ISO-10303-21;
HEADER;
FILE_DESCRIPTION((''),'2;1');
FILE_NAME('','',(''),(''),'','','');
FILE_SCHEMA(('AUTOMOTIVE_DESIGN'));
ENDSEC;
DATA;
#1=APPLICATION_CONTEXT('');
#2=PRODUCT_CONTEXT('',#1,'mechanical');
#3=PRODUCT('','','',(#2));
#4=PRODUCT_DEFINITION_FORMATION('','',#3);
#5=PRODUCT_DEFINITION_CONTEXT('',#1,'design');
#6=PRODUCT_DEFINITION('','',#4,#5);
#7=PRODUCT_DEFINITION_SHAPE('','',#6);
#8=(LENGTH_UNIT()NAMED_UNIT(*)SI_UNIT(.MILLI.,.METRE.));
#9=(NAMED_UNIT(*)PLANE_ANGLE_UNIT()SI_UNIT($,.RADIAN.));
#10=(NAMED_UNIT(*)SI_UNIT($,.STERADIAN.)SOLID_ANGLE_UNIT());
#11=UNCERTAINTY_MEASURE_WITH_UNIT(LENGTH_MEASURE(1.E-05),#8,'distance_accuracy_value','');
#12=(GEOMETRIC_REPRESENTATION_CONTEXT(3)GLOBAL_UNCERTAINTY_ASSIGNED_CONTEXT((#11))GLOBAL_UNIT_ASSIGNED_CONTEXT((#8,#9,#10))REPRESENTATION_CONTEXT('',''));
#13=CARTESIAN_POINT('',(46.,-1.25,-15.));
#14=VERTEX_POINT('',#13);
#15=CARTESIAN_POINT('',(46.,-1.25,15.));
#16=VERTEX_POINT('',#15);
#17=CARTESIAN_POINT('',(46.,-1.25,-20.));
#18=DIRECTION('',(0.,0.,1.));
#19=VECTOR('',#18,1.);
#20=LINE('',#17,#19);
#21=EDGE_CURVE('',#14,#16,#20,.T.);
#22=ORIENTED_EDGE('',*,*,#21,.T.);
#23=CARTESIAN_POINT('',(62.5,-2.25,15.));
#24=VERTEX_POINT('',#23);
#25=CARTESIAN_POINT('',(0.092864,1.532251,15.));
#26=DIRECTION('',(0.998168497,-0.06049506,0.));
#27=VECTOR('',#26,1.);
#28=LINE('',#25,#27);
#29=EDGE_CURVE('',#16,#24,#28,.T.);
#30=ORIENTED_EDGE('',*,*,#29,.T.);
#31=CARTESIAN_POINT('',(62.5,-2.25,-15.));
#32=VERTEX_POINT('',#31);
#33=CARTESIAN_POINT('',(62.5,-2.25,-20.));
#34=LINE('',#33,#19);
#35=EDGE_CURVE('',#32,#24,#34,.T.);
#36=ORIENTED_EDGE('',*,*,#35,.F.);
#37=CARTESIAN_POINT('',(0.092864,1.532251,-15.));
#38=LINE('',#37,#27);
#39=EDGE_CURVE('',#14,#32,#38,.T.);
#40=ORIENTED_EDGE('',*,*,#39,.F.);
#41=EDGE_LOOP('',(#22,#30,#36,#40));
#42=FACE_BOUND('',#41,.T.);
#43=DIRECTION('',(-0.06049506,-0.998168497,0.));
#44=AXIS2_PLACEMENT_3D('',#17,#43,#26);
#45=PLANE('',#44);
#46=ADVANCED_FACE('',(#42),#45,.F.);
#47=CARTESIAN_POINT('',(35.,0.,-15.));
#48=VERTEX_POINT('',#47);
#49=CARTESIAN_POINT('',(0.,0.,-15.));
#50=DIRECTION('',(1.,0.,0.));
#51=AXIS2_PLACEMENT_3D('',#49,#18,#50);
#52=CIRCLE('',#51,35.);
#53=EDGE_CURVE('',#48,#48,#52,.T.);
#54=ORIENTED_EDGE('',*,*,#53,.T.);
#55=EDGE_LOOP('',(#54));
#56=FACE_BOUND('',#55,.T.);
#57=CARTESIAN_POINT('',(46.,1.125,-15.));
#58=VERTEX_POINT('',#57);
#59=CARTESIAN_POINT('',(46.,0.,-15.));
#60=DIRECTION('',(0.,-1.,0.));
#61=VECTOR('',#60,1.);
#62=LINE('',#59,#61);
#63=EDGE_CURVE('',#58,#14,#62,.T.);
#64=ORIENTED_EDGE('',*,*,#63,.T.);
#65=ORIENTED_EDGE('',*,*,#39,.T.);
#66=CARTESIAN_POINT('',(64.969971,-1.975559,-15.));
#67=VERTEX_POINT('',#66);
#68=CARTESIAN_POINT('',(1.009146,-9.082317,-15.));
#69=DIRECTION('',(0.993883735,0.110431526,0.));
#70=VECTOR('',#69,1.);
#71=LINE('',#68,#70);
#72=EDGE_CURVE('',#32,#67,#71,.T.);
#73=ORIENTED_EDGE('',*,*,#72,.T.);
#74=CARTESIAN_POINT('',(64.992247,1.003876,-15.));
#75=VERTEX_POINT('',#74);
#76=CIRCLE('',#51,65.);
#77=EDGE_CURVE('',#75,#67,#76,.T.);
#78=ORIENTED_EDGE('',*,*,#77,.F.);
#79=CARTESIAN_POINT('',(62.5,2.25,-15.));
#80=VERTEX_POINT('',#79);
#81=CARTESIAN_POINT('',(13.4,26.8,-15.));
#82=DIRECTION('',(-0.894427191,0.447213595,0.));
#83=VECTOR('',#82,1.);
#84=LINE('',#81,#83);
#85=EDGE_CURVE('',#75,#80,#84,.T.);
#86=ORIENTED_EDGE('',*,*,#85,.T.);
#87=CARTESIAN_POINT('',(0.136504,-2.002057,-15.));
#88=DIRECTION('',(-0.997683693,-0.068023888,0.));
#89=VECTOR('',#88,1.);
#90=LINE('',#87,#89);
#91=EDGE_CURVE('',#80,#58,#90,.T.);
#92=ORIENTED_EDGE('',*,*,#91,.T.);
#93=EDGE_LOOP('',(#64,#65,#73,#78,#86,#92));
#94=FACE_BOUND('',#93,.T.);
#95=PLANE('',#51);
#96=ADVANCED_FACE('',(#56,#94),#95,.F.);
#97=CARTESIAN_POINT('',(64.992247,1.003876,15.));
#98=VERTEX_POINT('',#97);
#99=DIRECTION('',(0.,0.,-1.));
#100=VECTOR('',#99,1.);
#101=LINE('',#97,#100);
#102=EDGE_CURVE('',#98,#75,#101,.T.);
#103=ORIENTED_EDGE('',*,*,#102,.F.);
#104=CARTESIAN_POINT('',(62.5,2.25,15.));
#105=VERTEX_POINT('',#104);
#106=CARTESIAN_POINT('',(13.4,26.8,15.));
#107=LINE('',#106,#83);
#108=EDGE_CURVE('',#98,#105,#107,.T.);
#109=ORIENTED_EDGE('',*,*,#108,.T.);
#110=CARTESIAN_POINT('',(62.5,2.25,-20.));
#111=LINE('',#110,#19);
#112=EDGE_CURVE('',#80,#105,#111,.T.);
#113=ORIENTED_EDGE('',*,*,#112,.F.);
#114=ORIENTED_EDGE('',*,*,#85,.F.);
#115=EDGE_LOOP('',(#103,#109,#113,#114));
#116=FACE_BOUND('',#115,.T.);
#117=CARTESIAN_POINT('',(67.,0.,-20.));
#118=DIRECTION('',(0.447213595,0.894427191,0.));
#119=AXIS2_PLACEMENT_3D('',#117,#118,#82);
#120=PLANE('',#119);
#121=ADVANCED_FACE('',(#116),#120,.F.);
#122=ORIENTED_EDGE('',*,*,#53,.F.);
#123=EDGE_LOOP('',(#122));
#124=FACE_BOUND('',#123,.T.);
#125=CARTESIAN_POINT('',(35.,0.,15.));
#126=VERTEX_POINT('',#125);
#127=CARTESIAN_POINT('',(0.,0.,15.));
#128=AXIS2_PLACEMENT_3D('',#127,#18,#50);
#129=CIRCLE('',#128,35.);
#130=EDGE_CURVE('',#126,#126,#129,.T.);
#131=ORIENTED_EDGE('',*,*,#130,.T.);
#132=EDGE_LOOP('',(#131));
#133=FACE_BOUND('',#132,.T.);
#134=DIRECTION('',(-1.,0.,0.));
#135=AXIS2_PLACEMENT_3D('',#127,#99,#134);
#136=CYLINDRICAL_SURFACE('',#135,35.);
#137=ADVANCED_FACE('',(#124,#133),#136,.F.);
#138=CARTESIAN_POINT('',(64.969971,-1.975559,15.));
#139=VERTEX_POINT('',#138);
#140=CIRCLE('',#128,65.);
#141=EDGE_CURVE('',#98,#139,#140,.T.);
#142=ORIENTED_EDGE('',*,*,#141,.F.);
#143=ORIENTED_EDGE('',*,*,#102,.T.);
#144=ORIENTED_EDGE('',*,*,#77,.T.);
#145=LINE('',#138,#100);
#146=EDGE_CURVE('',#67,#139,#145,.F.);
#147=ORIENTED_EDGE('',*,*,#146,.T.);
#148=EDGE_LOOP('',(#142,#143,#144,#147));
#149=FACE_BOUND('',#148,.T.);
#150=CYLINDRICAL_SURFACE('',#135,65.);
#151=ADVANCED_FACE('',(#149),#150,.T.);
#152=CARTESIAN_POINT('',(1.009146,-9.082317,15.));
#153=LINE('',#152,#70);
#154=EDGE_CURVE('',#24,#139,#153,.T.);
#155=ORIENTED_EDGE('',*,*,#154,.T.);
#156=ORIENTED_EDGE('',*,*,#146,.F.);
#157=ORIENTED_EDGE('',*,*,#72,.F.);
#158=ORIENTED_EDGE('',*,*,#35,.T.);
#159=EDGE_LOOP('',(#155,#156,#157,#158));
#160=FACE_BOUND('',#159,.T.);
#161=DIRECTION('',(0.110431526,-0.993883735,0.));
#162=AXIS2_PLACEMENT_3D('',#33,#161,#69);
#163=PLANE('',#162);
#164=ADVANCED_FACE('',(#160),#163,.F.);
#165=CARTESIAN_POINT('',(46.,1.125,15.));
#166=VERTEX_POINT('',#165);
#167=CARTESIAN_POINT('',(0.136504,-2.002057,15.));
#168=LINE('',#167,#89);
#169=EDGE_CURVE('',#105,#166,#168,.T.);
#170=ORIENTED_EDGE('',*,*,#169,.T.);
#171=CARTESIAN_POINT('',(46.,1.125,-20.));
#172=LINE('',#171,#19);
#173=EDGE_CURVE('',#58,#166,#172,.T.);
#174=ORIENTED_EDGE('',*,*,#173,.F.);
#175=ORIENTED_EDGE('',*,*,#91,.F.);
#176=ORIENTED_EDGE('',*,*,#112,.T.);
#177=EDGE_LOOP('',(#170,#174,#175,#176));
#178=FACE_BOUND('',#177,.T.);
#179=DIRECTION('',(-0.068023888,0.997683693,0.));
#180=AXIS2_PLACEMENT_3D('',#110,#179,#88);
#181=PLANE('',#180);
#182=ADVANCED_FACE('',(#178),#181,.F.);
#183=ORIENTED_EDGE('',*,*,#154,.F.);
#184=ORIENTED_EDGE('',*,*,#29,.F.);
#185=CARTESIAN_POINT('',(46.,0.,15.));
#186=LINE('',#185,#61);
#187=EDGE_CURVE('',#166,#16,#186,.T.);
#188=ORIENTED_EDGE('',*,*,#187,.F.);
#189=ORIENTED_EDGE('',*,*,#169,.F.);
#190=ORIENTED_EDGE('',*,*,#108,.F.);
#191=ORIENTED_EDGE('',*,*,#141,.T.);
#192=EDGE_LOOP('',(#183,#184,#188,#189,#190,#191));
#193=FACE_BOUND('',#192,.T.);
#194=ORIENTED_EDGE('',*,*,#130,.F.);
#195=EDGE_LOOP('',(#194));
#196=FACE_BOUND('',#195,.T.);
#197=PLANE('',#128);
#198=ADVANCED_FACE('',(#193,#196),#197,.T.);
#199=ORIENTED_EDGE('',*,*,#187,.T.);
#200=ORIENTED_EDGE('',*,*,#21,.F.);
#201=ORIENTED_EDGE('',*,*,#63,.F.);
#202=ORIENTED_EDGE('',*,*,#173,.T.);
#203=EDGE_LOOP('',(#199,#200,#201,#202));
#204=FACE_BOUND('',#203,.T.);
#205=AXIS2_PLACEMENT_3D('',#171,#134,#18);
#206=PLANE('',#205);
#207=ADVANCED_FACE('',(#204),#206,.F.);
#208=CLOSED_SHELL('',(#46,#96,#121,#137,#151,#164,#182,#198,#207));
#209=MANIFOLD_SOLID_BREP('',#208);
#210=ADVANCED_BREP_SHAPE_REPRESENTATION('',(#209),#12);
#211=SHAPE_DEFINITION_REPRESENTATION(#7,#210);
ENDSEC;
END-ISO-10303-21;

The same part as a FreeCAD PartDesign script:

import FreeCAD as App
import Part
import Sketcher
from FreeCAD import Vector
Q = App.Units.Quantity

doc = App.newDocument("Part")
body = doc.addObject("PartDesign::Body", "Body")

# Sketch on XY plane
sketch1 = body.newObject("Sketcher::SketchObject", "Sketch")
sketch1.AttachmentSupport = (doc.getObject("XY_Plane"), [""])
sketch1.MapMode = "FlatFace"
sketch1.addGeometry([
    Part.Circle(Vector(0, 0, 0), Vector(0, 0, 1), 65),
    Part.Circle(Vector(0, 0, 0), Vector(0, 0, 1), 35),
], False)
sketch1.addConstraint([
    Sketcher.Constraint("Coincident", 0, 3, -1, 1),
    Sketcher.Constraint("Coincident", 1, 3, -1, 1),
    Sketcher.Constraint("Diameter", 0, Q("130 mm")),
    Sketcher.Constraint("Diameter", 1, Q("70 mm")),
])
pad1 = body.newObject("PartDesign::Pad", "Pad")
pad1.Profile = sketch1
pad1.Length = 30
pad1.Midplane = True

# Sketch on XY plane
sketch2 = body.newObject("Sketcher::SketchObject", "Sketch001")
sketch2.AttachmentSupport = (doc.getObject("XY_Plane"), [""])
sketch2.MapMode = "FlatFace"
sketch2.addGeometry([
    Part.LineSegment(Vector(46, -1.2, 0), Vector(62.5, -2.2, 0)),  # 0
    Part.LineSegment(Vector(62.5, -2.2, 0), Vector(67, -1.8, 0)),  # 1
    Part.LineSegment(Vector(67, -1.8, 0), Vector(67, 0, 0)),  # 2
    Part.LineSegment(Vector(67, 0, 0), Vector(62.5, 2.2, 0)),  # 3
    Part.LineSegment(Vector(62.5, 2.2, 0), Vector(46, 1.1, 0)),  # 4
    Part.LineSegment(Vector(46, 1.1, 0), Vector(46, -1.2, 0)),  # 5
], False)
sketch2.addConstraint([
    Sketcher.Constraint("Coincident", 0, 2, 1, 1),
    Sketcher.Constraint("Coincident", 1, 2, 2, 1),
    Sketcher.Constraint("Coincident", 2, 2, 3, 1),
    Sketcher.Constraint("Coincident", 3, 2, 4, 1),
    Sketcher.Constraint("Coincident", 4, 2, 5, 1),
    Sketcher.Constraint("Coincident", 5, 2, 0, 1),
    Sketcher.Constraint("Vertical", 2),
    Sketcher.Constraint("Vertical", 5),
    Sketcher.Constraint("Symmetric", 0, 2, 3, 2, -1),
    Sketcher.Constraint("PointOnObject", 2, 2, -1),
    Sketcher.Constraint("DistanceX", -1, 1, 1, 2, Q("67 mm")),
    Sketcher.Constraint("DistanceX", -1, 1, 4, 2, Q("46 mm")),
    Sketcher.Constraint("DistanceY", 1, 2, 3, 2, Q("4 mm")),
    Sketcher.Constraint("DistanceY", 0, 2, 5, 2, Q("1 mm")),
    Sketcher.Constraint("DistanceY", 2, 1, 2, 2, Q("1.75 mm")),
    Sketcher.Constraint("DistanceX", -1, 1, 0, 2, Q("62.5 mm")),
    Sketcher.Constraint("DistanceY", 5, 2, 5, 1, Q("2.375 mm")),
])
pocket1 = body.newObject("PartDesign::Pocket", "Pocket")
pocket1.Profile = sketch2
pocket1.Length = 40
pocket1.Midplane = True

doc.recompute()
